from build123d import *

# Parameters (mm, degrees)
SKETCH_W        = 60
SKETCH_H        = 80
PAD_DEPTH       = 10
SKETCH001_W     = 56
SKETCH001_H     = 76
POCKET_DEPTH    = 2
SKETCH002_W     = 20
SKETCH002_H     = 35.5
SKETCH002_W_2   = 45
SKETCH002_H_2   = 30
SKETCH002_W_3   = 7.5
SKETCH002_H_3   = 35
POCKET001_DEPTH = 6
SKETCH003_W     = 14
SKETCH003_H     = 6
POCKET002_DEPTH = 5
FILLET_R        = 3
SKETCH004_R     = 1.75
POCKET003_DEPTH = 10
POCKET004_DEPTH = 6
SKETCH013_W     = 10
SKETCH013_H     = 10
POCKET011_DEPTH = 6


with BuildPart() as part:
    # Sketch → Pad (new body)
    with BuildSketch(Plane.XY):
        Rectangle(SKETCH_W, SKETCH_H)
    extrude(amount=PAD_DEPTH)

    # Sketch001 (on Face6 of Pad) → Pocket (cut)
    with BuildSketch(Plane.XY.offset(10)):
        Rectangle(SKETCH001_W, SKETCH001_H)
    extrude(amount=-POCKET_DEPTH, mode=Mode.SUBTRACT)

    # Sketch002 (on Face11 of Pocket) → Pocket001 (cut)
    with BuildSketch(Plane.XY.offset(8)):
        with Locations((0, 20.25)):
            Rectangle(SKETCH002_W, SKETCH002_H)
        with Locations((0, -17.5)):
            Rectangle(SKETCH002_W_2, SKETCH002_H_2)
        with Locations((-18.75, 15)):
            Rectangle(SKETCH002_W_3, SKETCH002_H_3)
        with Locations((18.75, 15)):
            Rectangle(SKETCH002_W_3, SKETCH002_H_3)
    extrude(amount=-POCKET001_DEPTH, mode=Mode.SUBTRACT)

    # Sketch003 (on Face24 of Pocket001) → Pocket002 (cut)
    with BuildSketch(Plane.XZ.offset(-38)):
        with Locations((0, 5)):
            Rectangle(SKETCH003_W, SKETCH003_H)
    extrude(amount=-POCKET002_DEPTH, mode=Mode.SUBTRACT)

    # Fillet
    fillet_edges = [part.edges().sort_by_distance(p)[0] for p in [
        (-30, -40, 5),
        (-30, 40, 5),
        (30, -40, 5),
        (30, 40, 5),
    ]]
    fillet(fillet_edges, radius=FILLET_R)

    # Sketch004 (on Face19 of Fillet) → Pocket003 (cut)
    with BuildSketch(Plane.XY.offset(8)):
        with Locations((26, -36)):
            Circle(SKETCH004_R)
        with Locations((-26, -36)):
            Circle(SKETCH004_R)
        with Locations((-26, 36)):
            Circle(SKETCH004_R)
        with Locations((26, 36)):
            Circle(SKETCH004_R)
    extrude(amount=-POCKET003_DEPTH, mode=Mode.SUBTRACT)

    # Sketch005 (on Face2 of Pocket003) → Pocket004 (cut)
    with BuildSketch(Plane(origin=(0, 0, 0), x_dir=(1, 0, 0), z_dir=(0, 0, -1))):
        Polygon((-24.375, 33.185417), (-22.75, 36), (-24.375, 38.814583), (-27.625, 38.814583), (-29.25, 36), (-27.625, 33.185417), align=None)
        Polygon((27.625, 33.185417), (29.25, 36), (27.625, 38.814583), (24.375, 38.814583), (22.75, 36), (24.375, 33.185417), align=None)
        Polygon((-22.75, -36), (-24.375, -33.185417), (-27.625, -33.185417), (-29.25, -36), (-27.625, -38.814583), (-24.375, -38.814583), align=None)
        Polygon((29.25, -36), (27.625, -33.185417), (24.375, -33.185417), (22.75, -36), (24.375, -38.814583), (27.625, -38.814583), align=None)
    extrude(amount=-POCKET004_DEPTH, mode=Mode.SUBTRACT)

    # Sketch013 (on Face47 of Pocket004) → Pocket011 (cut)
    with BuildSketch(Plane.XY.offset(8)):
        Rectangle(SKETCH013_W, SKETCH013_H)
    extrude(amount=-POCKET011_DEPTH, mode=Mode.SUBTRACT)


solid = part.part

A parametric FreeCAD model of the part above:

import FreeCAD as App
import Part
import Sketcher
from FreeCAD import Vector
Q = App.Units.Quantity


def edges_at(feature, points):
    """Names of the edges that pass closest to the given points."""
    edges = feature.Shape.Edges
    near = lambda p: min(range(len(edges)), key=lambda i: edges[i].distToShape(Part.Vertex(*p))[0])
    return sorted({f"Edge{near(p) + 1}" for p in points})

doc = App.newDocument("Part")
body = doc.addObject("PartDesign::Body", "Body")

# Sketch on XY plane
sketch1 = doc.addObject("Sketcher::SketchObject", "Sketch")
body.addObject(sketch1)
sketch1.AttachmentSupport = (doc.XY_Plane, [""])
sketch1.MapMode = "FlatFace"
sketch1.addGeometry([
    Part.LineSegment(Vector(-30, 40, 0), Vector(-30, -40, 0)),
    Part.LineSegment(Vector(-30, -40, 0), Vector(30, -40, 0)),
    Part.LineSegment(Vector(30, -40, 0), Vector(30, 40, 0)),
    Part.LineSegment(Vector(30, 40, 0), Vector(-30, 40, 0)),
], False)
sketch1.addConstraint([
    Sketcher.Constraint("Coincident", 0, 2, 1, 1),
    Sketcher.Constraint("Coincident", 1, 2, 2, 1),
    Sketcher.Constraint("Coincident", 2, 2, 3, 1),
    Sketcher.Constraint("Coincident", 3, 2, 0, 1),
    Sketcher.Constraint("Vertical", 0),
    Sketcher.Constraint("Horizontal", 1),
    Sketcher.Constraint("Vertical", 2),
    Sketcher.Constraint("Horizontal", 3),
    Sketcher.Constraint("Symmetric", 0, 2, 2, 2, -1, 1),
    Sketcher.Constraint("DistanceX", 1, 1, 1, 2, 60.0),
    Sketcher.Constraint("DistanceY", 0, 2, 0, 1, 80.0),
])
pad1 = doc.addObject("PartDesign::Pad", "Pad")
body.addObject(pad1)
pad1.Profile = sketch1
pad1.Length = 10

# Sketch on XY plane
sketch2 = doc.addObject("Sketcher::SketchObject", "Sketch001")
body.addObject(sketch2)
sketch2.AttachmentSupport = (doc.XY_Plane, [""])
sketch2.MapMode = "FlatFace"
sketch2.AttachmentOffset = App.Placement(Vector(0, 0, 10), App.Rotation())
sketch2.addGeometry([
    Part.LineSegment(Vector(-28, 38, 0), Vector(-28, -38, 0)),
    Part.LineSegment(Vector(-28, -38, 0), Vector(28, -38, 0)),
    Part.LineSegment(Vector(28, -38, 0), Vector(28, 38, 0)),
    Part.LineSegment(Vector(28, 38, 0), Vector(-28, 38, 0)),
], False)
sketch2.addConstraint([
    Sketcher.Constraint("Coincident", 0, 2, 1, 1),
    Sketcher.Constraint("Coincident", 1, 2, 2, 1),
    Sketcher.Constraint("Coincident", 2, 2, 3, 1),
    Sketcher.Constraint("Coincident", 3, 2, 0, 1),
    Sketcher.Constraint("Vertical", 0),
    Sketcher.Constraint("Horizontal", 1),
    Sketcher.Constraint("Vertical", 2),
    Sketcher.Constraint("Horizontal", 3),
    Sketcher.Constraint("Symmetric", 0, 2, 2, 2, -1, 1),
    Sketcher.Constraint("DistanceX", 1, 1, 1, 2, 56.0),
    Sketcher.Constraint("DistanceY", 0, 2, 0, 1, 76.0),
])
pocket1 = doc.addObject("PartDesign::Pocket", "Pocket")
body.addObject(pocket1)
pocket1.Profile = sketch2
pocket1.Length = 2

# Sketch on XY plane
sketch3 = doc.addObject("Sketcher::SketchObject", "Sketch002")
body.addObject(sketch3)
sketch3.AttachmentSupport = (doc.XY_Plane, [""])
sketch3.MapMode = "FlatFace"
sketch3.AttachmentOffset = App.Placement(Vector(0, 0, 8), App.Rotation())
sketch3.addGeometry([
    Part.LineSegment(Vector(-10, 38, 0), Vector(-10, 2, 0)),  # 0
    Part.LineSegment(Vector(-10, 2, 0), Vector(10, 2, 0)),  # 1
    Part.LineSegment(Vector(10, 2, 0), Vector(10, 38, 0)),  # 2
    Part.LineSegment(Vector(10, 38, 0), Vector(-10, 38, 0)),  # 3
    Part.LineSegment(Vector(-22, -32, 0), Vector(22, -32, 0)),  # 4
    Part.LineSegment(Vector(22, -32, 0), Vector(22, 32, 0)),  # 5
    Part.LineSegment(Vector(22, 32, 0), Vector(15, 32, 0)),  # 6
    Part.LineSegment(Vector(15, 32, 0), Vector(15, -2, 0)),  # 7
    Part.LineSegment(Vector(15, -2, 0), Vector(-15, -2, 0)),  # 8
    Part.LineSegment(Vector(-15, -2, 0), Vector(-15, 32, 0)),  # 9
    Part.LineSegment(Vector(-15, 32, 0), Vector(-22, 32, 0)),  # 10
    Part.LineSegment(Vector(-22, 32, 0), Vector(-22, -32, 0)),  # 11
], False)
sketch3.addConstraint([
    Sketcher.Constraint("Coincident", 0, 2, 1, 1),
    Sketcher.Constraint("Coincident", 1, 2, 2, 1),
    Sketcher.Constraint("Coincident", 2, 2, 3, 1),
    Sketcher.Constraint("Coincident", 3, 2, 0, 1),
    Sketcher.Constraint("Coincident", 4, 2, 5, 1),
    Sketcher.Constraint("Coincident", 5, 2, 6, 1),
    Sketcher.Constraint("Coincident", 6, 2, 7, 1),
    Sketcher.Constraint("Coincident", 7, 2, 8, 1),
    Sketcher.Constraint("Coincident", 8, 2, 9, 1),
    Sketcher.Constraint("Coincident", 9, 2, 10, 1),
    Sketcher.Constraint("Coincident", 10, 2, 11, 1),
    Sketcher.Constraint("Coincident", 11, 2, 4, 1),
    Sketcher.Constraint("Vertical", 0),
    Sketcher.Constraint("Horizontal", 1),
    Sketcher.Constraint("Vertical", 2),
    Sketcher.Constraint("Horizontal", 3),
    Sketcher.Constraint("Horizontal", 4),
    Sketcher.Constraint("Vertical", 5),
    Sketcher.Constraint("Horizontal", 6),
    Sketcher.Constraint("Vertical", 7),
    Sketcher.Constraint("Horizontal", 8),
    Sketcher.Constraint("Vertical", 9),
    Sketcher.Constraint("Horizontal", 10),
    Sketcher.Constraint("Vertical", 11),
    Sketcher.Constraint("Symmetric", 4, 2, 10, 2, -1, 1),
    Sketcher.Constraint("Symmetric", 6, 2, 9, 2, -2),
    Sketcher.Constraint("DistanceX", 1, 1, 1, 2, 20.0),
    Sketcher.Constraint("DistanceX", 4, 1, 4, 2, 45.0),
    Sketcher.Constraint("DistanceX", 8, 2, 8, 1, 30.0),
    Sketcher.Constraint("DistanceY", 5, 1, 5, 2, 65.0),
    Sketcher.Constraint("DistanceY", 7, 2, 7, 1, 35.0),
    Sketcher.Constraint("DistanceY", 0, 2, 0, 1, 35.5),
    Sketcher.Constraint("DistanceX", 0, 2, -1, 1, 10.0),
    Sketcher.Constraint("DistanceY", -1, 1, 2, 2, 38.0),
])
pocket2 = doc.addObject("PartDesign::Pocket", "Pocket001")
body.addObject(pocket2)
pocket2.Profile = sketch3
pocket2.Length = 6

# Sketch on XZ plane
sketch4 = doc.addObject("Sketcher::SketchObject", "Sketch003")
body.addObject(sketch4)
sketch4.AttachmentSupport = (doc.XZ_Plane, [""])
sketch4.MapMode = "FlatFace"
sketch4.AttachmentOffset = App.Placement(Vector(0, 0, -38), App.Rotation())
sketch4.addGeometry([
    Part.LineSegment(Vector(-7, 8, 0), Vector(-7, 2, 0)),
    Part.LineSegment(Vector(-7, 2, 0), Vector(7, 2, 0)),
    Part.LineSegment(Vector(7, 2, 0), Vector(7, 8, 0)),
    Part.LineSegment(Vector(7, 8, 0), Vector(-7, 8, 0)),
], False)
sketch4.addConstraint([
    Sketcher.Constraint("Coincident", 0, 2, 1, 1),
    Sketcher.Constraint("Coincident", 1, 2, 2, 1),
    Sketcher.Constraint("Coincident", 2, 2, 3, 1),
    Sketcher.Constraint("Coincident", 3, 2, 0, 1),
    Sketcher.Constraint("Vertical", 0),
    Sketcher.Constraint("Horizontal", 1),
    Sketcher.Constraint("Vertical", 2),
    Sketcher.Constraint("Horizontal", 3),
    Sketcher.Constraint("DistanceX", 1, 1, 1, 2, 14.0),
    Sketcher.Constraint("DistanceY", 0, 2, 0, 1, 6.0),
    Sketcher.Constraint("DistanceX", 0, 2, -1, 1, 7.0),
    Sketcher.Constraint("DistanceY", -1, 1, 0, 2, 2.0),
])
pocket3 = doc.addObject("PartDesign::Pocket", "Pocket002")
body.addObject(pocket3)
pocket3.Profile = sketch4
pocket3.Length = 5
doc.recompute()

fillet = doc.addObject("PartDesign::Fillet", "Fillet")
body.addObject(fillet)
fillet.Base = (pocket3, edges_at(pocket3, [
    (-30, -40, 5),
    (-30, 40, 5),
    (30, -40, 5),
    (30, 40, 5),
]))
fillet.Radius = 3

# Sketch on XY plane
sketch5 = doc.addObject("Sketcher::SketchObject", "Sketch004")
body.addObject(sketch5)
sketch5.AttachmentSupport = (doc.XY_Plane, [""])
sketch5.MapMode = "FlatFace"
sketch5.AttachmentOffset = App.Placement(Vector(0, 0, 8), App.Rotation())
sketch5.addGeometry([
    Part.Circle(Vector(26, -36, 0), Vector(0, 0, 1), 1.8),
    Part.Circle(Vector(-26, -36, 0), Vector(0, 0, 1), 1.8),
    Part.Circle(Vector(-26, 36, 0), Vector(0, 0, 1), 1.8),
    Part.Circle(Vector(26, 36, 0), Vector(0, 0, 1), 1.8),
], False)
sketch5.addConstraint([
    Sketcher.Constraint("Equal", 0, 1),
    Sketcher.Constraint("Equal", 1, 2),
    Sketcher.Constraint("Equal", 2, 3),
    Sketcher.Constraint("Symmetric", 0, 3, 2, 3, -1, 1),
    Sketcher.Constraint("Symmetric", 1, 3, 3, 3, -1, 1),
    Sketcher.Constraint("Symmetric", 0, 3, 1, 3, -2),
    Sketcher.Constraint("Diameter", 0, 3.5),
    Sketcher.Constraint("DistanceX", -1, 1, 0, 3, 26.0),
    Sketcher.Constraint("DistanceY", 0, 3, -1, 1, 36.0),
])
pocket4 = doc.addObject("PartDesign::Pocket", "Pocket003")
body.addObject(pocket4)
pocket4.Profile = sketch5
pocket4.Length = 10

# Sketch on XY plane
sketch6 = doc.addObject("Sketcher::SketchObject", "Sketch005")
body.addObject(sketch6)
sketch6.AttachmentSupport = (doc.XY_Plane, [""])
sketch6.MapMode = "FlatFace"
sketch6.addGeometry([
    Part.LineSegment(Vector(-24.4, -33.2, 0), Vector(-22.8, -36, 0)),  # 0
    Part.LineSegment(Vector(-22.8, -36, 0), Vector(-24.4, -38.8, 0)),  # 1
    Part.LineSegment(Vector(-24.4, -38.8, 0), Vector(-27.6, -38.8, 0)),  # 2
    Part.LineSegment(Vector(-27.6, -38.8, 0), Vector(-29.2, -36, 0)),  # 3
    Part.LineSegment(Vector(-29.2, -36, 0), Vector(-27.6, -33.2, 0)),  # 4
    Part.LineSegment(Vector(-27.6, -33.2, 0), Vector(-24.4, -33.2, 0)),  # 5
    Part.LineSegment(Vector(27.6, -33.2, 0), Vector(29.2, -36, 0)),  # 6
    Part.LineSegment(Vector(29.2, -36, 0), Vector(27.6, -38.8, 0)),  # 7
    Part.LineSegment(Vector(27.6, -38.8, 0), Vector(24.4, -38.8, 0)),  # 8
    Part.LineSegment(Vector(24.4, -38.8, 0), Vector(22.8, -36, 0)),  # 9
    Part.LineSegment(Vector(22.8, -36, 0), Vector(24.4, -33.2, 0)),  # 10
    Part.LineSegment(Vector(24.4, -33.2, 0), Vector(27.6, -33.2, 0)),  # 11
    Part.LineSegment(Vector(-22.8, 36, 0), Vector(-24.4, 33.2, 0)),  # 12
    Part.LineSegment(Vector(-24.4, 33.2, 0), Vector(-27.6, 33.2, 0)),  # 13
    Part.LineSegment(Vector(-27.6, 33.2, 0), Vector(-29.2, 36, 0)),  # 14
    Part.LineSegment(Vector(-29.2, 36, 0), Vector(-27.6, 38.8, 0)),  # 15
    Part.LineSegment(Vector(-27.6, 38.8, 0), Vector(-24.4, 38.8, 0)),  # 16
    Part.LineSegment(Vector(-24.4, 38.8, 0), Vector(-22.8, 36, 0)),  # 17
    Part.LineSegment(Vector(29.2, 36, 0), Vector(27.6, 33.2, 0)),  # 18
    Part.LineSegment(Vector(27.6, 33.2, 0), Vector(24.4, 33.2, 0)),  # 19
    Part.LineSegment(Vector(24.4, 33.2, 0), Vector(22.8, 36, 0)),  # 20
    Part.LineSegment(Vector(22.8, 36, 0), Vector(24.4, 38.8, 0)),  # 21
    Part.LineSegment(Vector(24.4, 38.8, 0), Vector(27.6, 38.8, 0)),  # 22
    Part.LineSegment(Vector(27.6, 38.8, 0), Vector(29.2, 36, 0)),  # 23
], False)
sketch6.addConstraint([
    Sketcher.Constraint("Coincident", 0, 2, 1, 1),
    Sketcher.Constraint("Coincident", 1, 2, 2, 1),
    Sketcher.Constraint("Coincident", 2, 2, 3, 1),
    Sketcher.Constraint("Coincident", 3, 2, 4, 1),
    Sketcher.Constraint("Coincident", 4, 2, 5, 1),
    Sketcher.Constraint("Coincident", 5, 2, 0, 1),
    Sketcher.Constraint("Coincident", 6, 2, 7, 1),
    Sketcher.Constraint("Coincident", 7, 2, 8, 1),
    Sketcher.Constraint("Coincident", 8, 2, 9, 1),
    Sketcher.Constraint("Coincident", 9, 2, 10, 1),
    Sketcher.Constraint("Coincident", 10, 2, 11, 1),
    Sketcher.Constraint("Coincident", 11, 2, 6, 1),
    Sketcher.Constraint("Coincident", 12, 2, 13, 1),
    Sketcher.Constraint("Coincident", 13, 2, 14, 1),
    Sketcher.Constraint("Coincident", 14, 2, 15, 1),
    Sketcher.Constraint("Coincident", 15, 2, 16, 1),
    Sketcher.Constraint("Coincident", 16, 2, 17, 1),
    Sketcher.Constraint("Coincident", 17, 2, 12, 1),
    Sketcher.Constraint("Coincident", 18, 2, 19, 1),
    Sketcher.Constraint("Coincident", 19, 2, 20, 1),
    Sketcher.Constraint("Coincident", 20, 2, 21, 1),
    Sketcher.Constraint("Coincident", 21, 2, 22, 1),
    Sketcher.Constraint("Coincident", 22, 2, 23, 1),
    Sketcher.Constraint("Coincident", 23, 2, 18, 1),
    Sketcher.Constraint("Horizontal", 2),
    Sketcher.Constraint("Horizontal", 5),
    Sketcher.Constraint("Horizontal", 8),
    Sketcher.Constraint("Horizontal", 11),
    Sketcher.Constraint("Horizontal", 13),
    Sketcher.Constraint("Horizontal", 16),
    Sketcher.Constraint("Horizontal", 19),
    Sketcher.Constraint("Horizontal", 22),
    Sketcher.Constraint("Symmetric", 10, 2, 12, 2, -1, 1),
    Sketcher.Constraint("Symmetric", 6, 2, 14, 2, -1, 1),
    Sketcher.Constraint("Symmetric", 7, 2, 15, 2, -1, 1),
    Sketcher.Constraint("Symmetric", 9, 2, 17, 2, -1, 1),
    Sketcher.Constraint("Symmetric", 4, 2, 18, 2, -1, 1),
    Sketcher.Constraint("Symmetric", 0, 2, 20, 2, -1, 1),
    Sketcher.Constraint("Symmetric", 1, 2, 21, 2, -1, 1),
    Sketcher.Constraint("Symmetric", 3, 2, 23, 2, -1, 1),
    Sketcher.Constraint("Symmetric", 3, 2, 6, 2, -2),
    Sketcher.Constraint("Symmetric", 2, 2, 7, 2, -2),
    Sketcher.Constraint("Symmetric", 0, 2, 9, 2, -2),
    Sketcher.Constraint("Symmetric", 5, 2, 10, 2, -2),
    Sketcher.Constraint("Parallel", 0, 3),
    Sketcher.Constraint("Parallel", 1, 4),
    Sketcher.Constraint("Parallel", 3, 6),
    Sketcher.Constraint("Parallel", 4, 7),
    Sketcher.Constraint("Parallel", 6, 9),
    Sketcher.Constraint("Parallel", 9, 14),
    Sketcher.Constraint("Parallel", 14, 17),
    Sketcher.Constraint("Parallel", 17, 20),
    Sketcher.Constraint("Parallel", 20, 23),
    Sketcher.Constraint("Horizontal", 0, 2, 3, 2),
    Sketcher.Constraint("Vertical", 2, 2, 4, 2),
    Sketcher.Constraint("Angle", 0, Q("-60.000004 deg")),
    Sketcher.Constraint("DistanceY", 0, 2, -1, 1, 36.0),
    Sketcher.Constraint("DistanceX", 0, 2, 6, 2, 52.0),
    Sketcher.Constraint("DistanceX", 2, 2, 2, 1, 3.25),
    Sketcher.Constraint("DistanceX", 3, 2, 0, 2, 6.5),
])
pocket5 = doc.addObject("PartDesign::Pocket", "Pocket004")
body.addObject(pocket5)
pocket5.Profile = sketch6
pocket5.Length = 6
pocket5.Reversed = True

# Sketch on XY plane
sketch7 = doc.addObject("Sketcher::SketchObject", "Sketch006")
body.addObject(sketch7)
sketch7.AttachmentSupport = (doc.XY_Plane, [""])
sketch7.MapMode = "FlatFace"
sketch7.AttachmentOffset = App.Placement(Vector(0, 0, 8), App.Rotation())
sketch7.addGeometry([
    Part.LineSegment(Vector(-5, 5, 0), Vector(-5, -5, 0)),
    Part.LineSegment(Vector(-5, -5, 0), Vector(5, -5, 0)),
    Part.LineSegment(Vector(5, -5, 0), Vector(5, 5, 0)),
    Part.LineSegment(Vector(5, 5, 0), Vector(-5, 5, 0)),
], False)
sketch7.addConstraint([
    Sketcher.Constraint("Coincident", 0, 2, 1, 1),
    Sketcher.Constraint("Coincident", 1, 2, 2, 1),
    Sketcher.Constraint("Coincident", 2, 2, 3, 1),
    Sketcher.Constraint("Coincident", 3, 2, 0, 1),
    Sketcher.Constraint("Vertical", 0),
    Sketcher.Constraint("Horizontal", 1),
    Sketcher.Constraint("Vertical", 2),
    Sketcher.Constraint("Horizontal", 3),
    Sketcher.Constraint("Symmetric", 0, 2, 2, 2, -1, 1),
    Sketcher.Constraint("Equal", 3, 0),
    Sketcher.Constraint("DistanceX", 1, 1, 1, 2, 10.0),
])
pocket6 = doc.addObject("PartDesign::Pocket", "Pocket005")
body.addObject(pocket6)
pocket6.Profile = sketch7
pocket6.Length = 6

doc.recompute()
